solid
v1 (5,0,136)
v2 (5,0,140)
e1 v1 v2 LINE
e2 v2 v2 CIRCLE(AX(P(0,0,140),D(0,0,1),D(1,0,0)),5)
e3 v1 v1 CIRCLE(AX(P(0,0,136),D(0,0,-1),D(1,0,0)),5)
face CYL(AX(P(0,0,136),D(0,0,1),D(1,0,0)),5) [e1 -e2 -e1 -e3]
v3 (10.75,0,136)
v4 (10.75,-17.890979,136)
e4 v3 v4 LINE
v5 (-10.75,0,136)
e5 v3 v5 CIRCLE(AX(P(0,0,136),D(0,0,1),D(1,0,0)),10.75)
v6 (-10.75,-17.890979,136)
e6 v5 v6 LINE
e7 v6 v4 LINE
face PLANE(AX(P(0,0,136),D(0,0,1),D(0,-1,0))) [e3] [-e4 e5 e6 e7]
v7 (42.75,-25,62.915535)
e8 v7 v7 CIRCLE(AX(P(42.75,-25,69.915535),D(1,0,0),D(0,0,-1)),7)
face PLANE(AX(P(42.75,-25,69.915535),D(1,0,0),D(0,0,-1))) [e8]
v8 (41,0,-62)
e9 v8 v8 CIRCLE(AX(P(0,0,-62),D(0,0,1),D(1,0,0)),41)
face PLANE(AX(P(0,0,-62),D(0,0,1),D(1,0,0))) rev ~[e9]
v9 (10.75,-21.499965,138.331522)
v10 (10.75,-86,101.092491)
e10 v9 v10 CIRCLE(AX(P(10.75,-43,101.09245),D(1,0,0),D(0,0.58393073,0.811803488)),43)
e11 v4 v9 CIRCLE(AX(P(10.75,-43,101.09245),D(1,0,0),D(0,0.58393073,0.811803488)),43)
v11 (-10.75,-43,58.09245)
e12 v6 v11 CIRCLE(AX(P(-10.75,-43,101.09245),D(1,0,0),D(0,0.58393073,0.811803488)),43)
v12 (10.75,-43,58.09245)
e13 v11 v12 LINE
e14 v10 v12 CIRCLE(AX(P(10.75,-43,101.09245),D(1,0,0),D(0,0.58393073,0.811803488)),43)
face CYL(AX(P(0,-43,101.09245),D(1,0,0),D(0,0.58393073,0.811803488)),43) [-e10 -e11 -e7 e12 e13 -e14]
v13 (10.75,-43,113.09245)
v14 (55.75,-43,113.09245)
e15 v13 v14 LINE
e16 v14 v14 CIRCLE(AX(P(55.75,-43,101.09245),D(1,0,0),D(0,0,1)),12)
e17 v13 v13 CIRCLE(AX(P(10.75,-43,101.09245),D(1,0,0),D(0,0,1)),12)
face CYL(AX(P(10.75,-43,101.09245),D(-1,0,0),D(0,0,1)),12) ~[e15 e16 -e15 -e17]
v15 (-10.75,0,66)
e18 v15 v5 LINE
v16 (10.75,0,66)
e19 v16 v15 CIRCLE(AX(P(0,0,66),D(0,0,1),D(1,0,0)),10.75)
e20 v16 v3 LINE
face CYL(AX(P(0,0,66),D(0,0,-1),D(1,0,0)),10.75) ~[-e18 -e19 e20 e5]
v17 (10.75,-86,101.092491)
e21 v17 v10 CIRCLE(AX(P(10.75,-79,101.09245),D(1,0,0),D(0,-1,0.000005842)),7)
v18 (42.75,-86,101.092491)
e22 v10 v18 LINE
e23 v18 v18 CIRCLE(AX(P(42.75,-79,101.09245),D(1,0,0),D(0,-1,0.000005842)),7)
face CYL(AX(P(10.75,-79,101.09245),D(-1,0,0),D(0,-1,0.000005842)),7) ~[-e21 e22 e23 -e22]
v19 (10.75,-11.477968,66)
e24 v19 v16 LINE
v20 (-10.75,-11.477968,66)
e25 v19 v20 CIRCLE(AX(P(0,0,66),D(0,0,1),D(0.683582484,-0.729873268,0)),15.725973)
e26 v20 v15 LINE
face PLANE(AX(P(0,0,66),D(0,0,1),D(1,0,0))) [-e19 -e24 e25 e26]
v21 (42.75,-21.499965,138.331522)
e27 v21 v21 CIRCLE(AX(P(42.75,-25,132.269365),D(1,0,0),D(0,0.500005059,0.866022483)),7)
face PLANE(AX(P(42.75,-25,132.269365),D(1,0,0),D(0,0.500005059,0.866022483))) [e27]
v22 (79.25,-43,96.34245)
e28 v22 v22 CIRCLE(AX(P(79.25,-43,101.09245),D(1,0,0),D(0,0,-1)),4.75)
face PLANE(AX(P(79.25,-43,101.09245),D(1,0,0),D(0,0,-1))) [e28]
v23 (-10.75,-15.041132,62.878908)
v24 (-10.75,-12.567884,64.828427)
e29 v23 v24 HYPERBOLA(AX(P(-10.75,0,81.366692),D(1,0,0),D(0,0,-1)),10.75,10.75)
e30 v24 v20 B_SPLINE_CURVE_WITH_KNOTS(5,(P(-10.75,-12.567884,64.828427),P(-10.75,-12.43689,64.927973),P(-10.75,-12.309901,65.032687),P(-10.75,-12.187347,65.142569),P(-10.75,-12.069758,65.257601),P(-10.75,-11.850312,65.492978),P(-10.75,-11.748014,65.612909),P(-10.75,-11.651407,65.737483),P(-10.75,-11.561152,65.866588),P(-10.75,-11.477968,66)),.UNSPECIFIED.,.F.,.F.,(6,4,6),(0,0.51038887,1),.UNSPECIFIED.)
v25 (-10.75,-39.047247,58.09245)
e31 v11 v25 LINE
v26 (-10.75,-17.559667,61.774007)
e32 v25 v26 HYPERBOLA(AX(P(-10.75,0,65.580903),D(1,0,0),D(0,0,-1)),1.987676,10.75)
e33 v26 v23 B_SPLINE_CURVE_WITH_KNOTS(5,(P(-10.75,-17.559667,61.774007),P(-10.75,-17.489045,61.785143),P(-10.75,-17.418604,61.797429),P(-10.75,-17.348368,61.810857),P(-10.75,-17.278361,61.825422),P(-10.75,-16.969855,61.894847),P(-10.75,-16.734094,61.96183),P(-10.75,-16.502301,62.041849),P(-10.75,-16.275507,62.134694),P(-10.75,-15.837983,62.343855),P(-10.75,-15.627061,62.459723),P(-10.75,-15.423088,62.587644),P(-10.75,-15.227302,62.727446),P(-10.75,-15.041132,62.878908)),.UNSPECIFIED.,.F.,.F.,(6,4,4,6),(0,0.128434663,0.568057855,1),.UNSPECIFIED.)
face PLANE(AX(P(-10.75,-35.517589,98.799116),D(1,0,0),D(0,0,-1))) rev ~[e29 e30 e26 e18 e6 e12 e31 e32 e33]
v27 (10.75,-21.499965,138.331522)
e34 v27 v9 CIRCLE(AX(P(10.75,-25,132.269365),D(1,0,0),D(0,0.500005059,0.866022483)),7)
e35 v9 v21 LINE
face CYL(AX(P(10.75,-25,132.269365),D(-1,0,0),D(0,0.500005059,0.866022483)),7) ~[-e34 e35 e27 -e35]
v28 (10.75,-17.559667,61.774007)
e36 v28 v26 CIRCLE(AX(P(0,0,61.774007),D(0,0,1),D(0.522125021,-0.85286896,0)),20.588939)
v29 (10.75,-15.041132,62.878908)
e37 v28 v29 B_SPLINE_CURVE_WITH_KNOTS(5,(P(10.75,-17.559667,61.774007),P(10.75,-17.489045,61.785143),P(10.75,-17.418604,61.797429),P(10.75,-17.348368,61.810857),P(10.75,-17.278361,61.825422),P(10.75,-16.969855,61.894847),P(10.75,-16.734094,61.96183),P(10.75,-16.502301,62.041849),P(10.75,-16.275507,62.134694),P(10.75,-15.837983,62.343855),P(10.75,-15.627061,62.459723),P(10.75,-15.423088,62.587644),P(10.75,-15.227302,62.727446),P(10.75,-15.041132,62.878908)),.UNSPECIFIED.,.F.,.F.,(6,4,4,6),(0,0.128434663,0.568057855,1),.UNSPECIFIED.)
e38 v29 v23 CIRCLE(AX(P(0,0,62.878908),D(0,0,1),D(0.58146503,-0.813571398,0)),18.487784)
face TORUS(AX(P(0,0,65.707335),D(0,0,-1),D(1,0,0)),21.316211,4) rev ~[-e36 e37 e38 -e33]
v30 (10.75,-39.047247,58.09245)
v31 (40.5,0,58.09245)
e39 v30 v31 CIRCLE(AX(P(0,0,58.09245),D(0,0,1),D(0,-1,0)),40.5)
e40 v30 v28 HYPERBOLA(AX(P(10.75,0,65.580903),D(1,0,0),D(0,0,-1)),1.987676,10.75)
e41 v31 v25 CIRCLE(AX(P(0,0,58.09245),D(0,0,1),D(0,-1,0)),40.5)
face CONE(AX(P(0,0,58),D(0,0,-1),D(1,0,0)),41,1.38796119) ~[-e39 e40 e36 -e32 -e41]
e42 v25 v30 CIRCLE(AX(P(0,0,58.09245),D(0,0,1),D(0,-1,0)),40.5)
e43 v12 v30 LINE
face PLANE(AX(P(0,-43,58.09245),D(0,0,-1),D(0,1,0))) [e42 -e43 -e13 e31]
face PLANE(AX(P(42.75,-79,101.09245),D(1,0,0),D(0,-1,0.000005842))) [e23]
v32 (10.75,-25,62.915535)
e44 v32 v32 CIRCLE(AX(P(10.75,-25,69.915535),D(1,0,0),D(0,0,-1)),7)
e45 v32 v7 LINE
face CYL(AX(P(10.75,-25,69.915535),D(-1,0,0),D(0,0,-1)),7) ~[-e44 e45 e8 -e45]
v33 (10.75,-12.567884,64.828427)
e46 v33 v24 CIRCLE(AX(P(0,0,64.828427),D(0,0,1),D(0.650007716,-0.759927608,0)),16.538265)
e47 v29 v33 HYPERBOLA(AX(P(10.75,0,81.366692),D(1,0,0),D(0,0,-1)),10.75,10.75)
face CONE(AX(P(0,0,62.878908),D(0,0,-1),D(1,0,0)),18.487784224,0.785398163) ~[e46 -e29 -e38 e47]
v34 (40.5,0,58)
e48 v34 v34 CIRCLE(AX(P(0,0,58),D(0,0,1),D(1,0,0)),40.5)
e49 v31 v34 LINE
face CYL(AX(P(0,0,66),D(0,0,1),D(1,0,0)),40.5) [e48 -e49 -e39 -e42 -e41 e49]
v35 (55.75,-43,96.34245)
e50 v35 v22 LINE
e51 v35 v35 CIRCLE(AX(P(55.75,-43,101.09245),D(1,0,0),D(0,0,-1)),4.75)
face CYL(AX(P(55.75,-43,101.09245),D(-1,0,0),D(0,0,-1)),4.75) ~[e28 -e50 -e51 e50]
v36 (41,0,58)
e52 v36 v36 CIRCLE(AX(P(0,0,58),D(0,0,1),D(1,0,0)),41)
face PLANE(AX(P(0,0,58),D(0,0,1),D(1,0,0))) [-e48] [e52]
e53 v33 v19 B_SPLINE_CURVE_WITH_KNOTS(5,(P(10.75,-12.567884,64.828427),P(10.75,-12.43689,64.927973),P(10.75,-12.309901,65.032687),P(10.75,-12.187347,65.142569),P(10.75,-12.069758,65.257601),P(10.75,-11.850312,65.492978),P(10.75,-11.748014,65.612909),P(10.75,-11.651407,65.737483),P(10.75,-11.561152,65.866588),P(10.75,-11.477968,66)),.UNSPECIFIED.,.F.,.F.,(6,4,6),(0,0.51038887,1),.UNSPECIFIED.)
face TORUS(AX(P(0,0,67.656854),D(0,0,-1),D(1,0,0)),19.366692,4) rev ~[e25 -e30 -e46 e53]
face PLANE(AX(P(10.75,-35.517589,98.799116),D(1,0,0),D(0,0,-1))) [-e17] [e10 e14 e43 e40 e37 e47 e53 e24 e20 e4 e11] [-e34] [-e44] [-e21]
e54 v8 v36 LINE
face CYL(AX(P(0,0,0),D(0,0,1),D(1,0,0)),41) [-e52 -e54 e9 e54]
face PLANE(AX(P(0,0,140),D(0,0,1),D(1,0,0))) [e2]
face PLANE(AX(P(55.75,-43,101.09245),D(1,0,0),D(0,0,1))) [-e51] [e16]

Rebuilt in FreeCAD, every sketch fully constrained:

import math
import FreeCAD as App
import Part
import Sketcher

doc = App.newDocument("Part")
params = doc.addObject("Spreadsheet::Sheet", "Params")
for row, (alias, value) in enumerate([
    ("sketch1_diameter", "82 mm"),
    ("pad1_length", "124 mm"),
    ("sketch2_diameter", "82 mm"),
    ("pad2_length", "8 mm"),
    ("sketch3_diameter", "82 mm"),
    ("sketch3_diameter2", "81 mm"),
    ("pocket1_length", "8 mm"),
    ("sketch4_radius", "4 mm"),
    ("sketch4_radius2", "4 mm"),
    ("sketch4_width", "3 mm"),
    ("sketch4_height", "10 mm"),
    ("groove_angle", "360 deg"),
    ("sketch5_diameter", "21.5 mm"),
    ("pad3_length", "70 mm"),
    ("sketch6_diameter", "10 mm"),
    ("pad4_length", "8 mm"),
    ("sketch7_radius", "43 mm"),
    ("sketch7_width", "43 mm"),
    ("pad5_length", "21.5 mm"),
    ("sketch8_diameter", "14 mm"),
    ("pad6_length", "32 mm"),
    ("sketch9_diameter", "24 mm"),
    ("pad7_length", "45 mm"),
    ("sketch10_diameter", "9.5 mm"),
    ("pad8_length", "23.5 mm"),
], start=1):
    params.set(f"A{row}", alias)
    params.set(f"B{row}", "=" + value)
    params.setAlias(f"B{row}", alias)

body = doc.addObject("PartDesign::Body", "Body")

sketch1 = body.newObject("Sketcher::SketchObject", "Sketch")
sketch1.AttachmentSupport = (doc.getObject("XY_Plane"), [""])
sketch1.MapMode = "FlatFace"
sketch1.addGeometry(Part.Circle(App.Vector(0, 0, 0), App.Vector(0, 0, 1), 41), False)
sketch1.addConstraint([
    Sketcher.Constraint("Coincident", 0, 3, -1, 1),
    Sketcher.Constraint("Diameter", 0, 82.0),
])
sketch1.setExpression("Constraints[1]", "Params.sketch1_diameter")
pad1 = body.newObject("PartDesign::Pad", "Pad")
pad1.Profile = sketch1
pad1.setExpression("Length", "Params.pad1_length")
pad1.Midplane = True

sketch2 = body.newObject("Sketcher::SketchObject", "Sketch001")
sketch2.AttachmentSupport = (doc.getObject("XY_Plane"), [""])
sketch2.MapMode = "FlatFace"
sketch2.AttachmentOffset = App.Placement(App.Vector(0, 0, 62), App.Rotation())
sketch2.addGeometry(Part.Circle(App.Vector(0, 0, 0), App.Vector(0, 0, 1), 41), False)
sketch2.addConstraint([
    Sketcher.Constraint("Coincident", 0, 3, -1, 1),
    Sketcher.Constraint("Diameter", 0, 82.0),
])
sketch2.setExpression("Constraints[1]", "Params.sketch2_diameter")
pad2 = body.newObject("PartDesign::Pad", "Pad001")
pad2.Profile = sketch2
pad2.setExpression("Length", "Params.pad2_length")
pad2.Midplane = True

sketch3 = body.newObject("Sketcher::SketchObject", "Sketch002")
sketch3.AttachmentSupport = (doc.getObject("XY_Plane"), [""])
sketch3.MapMode = "FlatFace"
sketch3.AttachmentOffset = App.Placement(App.Vector(0, 0, 66), App.Rotation())
sketch3.addGeometry([
    Part.Circle(App.Vector(0, 0, 0), App.Vector(0, 0, 1), 41),
    Part.Circle(App.Vector(0, 0, 0), App.Vector(0, 0, 1), 40),
], False)
sketch3.addConstraint([
    Sketcher.Constraint("Coincident", 0, 3, -1, 1),
    Sketcher.Constraint("Coincident", 1, 3, -1, 1),
    Sketcher.Constraint("Diameter", 0, 82.0),
    Sketcher.Constraint("Diameter", 1, 81.0),
])
sketch3.setExpression("Constraints[2]", "Params.sketch3_diameter")
sketch3.setExpression("Constraints[3]", "Params.sketch3_diameter2")
pocket1 = body.newObject("PartDesign::Pocket", "Pocket")
pocket1.Profile = sketch3
pocket1.setExpression("Length", "Params.pocket1_length")

sketch4 = body.newObject("Sketcher::SketchObject", "Sketch003")
sketch4.AttachmentSupport = (doc.getObject("YZ_Plane"), [""])
sketch4.MapMode = "FlatFace"
sketch4.addGeometry([
    Part.LineSegment(App.Vector(20.588939, 61.774007, 0), App.Vector(41, 58, 0)),
    Part.LineSegment(App.Vector(41, 58, 0), App.Vector(44, 58, 0)),
    Part.LineSegment(App.Vector(44, 58, 0), App.Vector(44, 68, 0)),
    Part.LineSegment(App.Vector(44, 68, 0), App.Vector(15.366692, 68, 0)),
    Part.LineSegment(App.Vector(15.366692, 68, 0), App.Vector(15.366692, 67.656854, 0)),
    Part.ArcOfCircle(Part.Circle(App.Vector(19.366692, 67.656854, 0), App.Vector(0, 0, 1), 4), math.radians(-180), math.radians(-135)),
    Part.LineSegment(App.Vector(16.538265, 64.828427, 0), App.Vector(18.487784, 62.878908, 0)),
    Part.ArcOfCircle(Part.Circle(App.Vector(21.316211, 65.707335, 0), App.Vector(0, 0, 1), 4), math.radians(-135), math.radians(-100.475682)),
], False)
sketch4.addConstraint([
    Sketcher.Constraint("Coincident", 0, 2, 1, 1),
    Sketcher.Constraint("Coincident", 1, 2, 2, 1),
    Sketcher.Constraint("Coincident", 2, 2, 3, 1),
    Sketcher.Constraint("Coincident", 3, 2, 4, 1),
    Sketcher.Constraint("Coincident", 4, 2, 5, 1),
    Sketcher.Constraint("Coincident", 5, 2, 6, 1),
    Sketcher.Constraint("Coincident", 6, 2, 7, 1),
    Sketcher.Constraint("Coincident", 7, 2, 0, 1),
    Sketcher.Constraint("Horizontal", 1),
    Sketcher.Constraint("Vertical", 2),
    Sketcher.Constraint("Horizontal", 3),
    Sketcher.Constraint("Vertical", 4),
    Sketcher.Constraint("Radius", 5, 4.0),
    Sketcher.Constraint("Radius", 7, 4.0),
    Sketcher.Constraint("DistanceX", 1, 1, 1, 2, 3.0),
    Sketcher.Constraint("DistanceY", 2, 1, 2, 2, 10.0),
    Sketcher.Constraint("DistanceX", -1, 1, 0, 2, 41.0),
    Sketcher.Constraint("DistanceY", -1, 1, 0, 2, 58.0),
    Sketcher.Constraint("DistanceY", 7, 2, 6, 2, 1.104902),
    Sketcher.Constraint("DistanceX", 3, 2, 3, 1, 28.633308),
    Sketcher.Constraint("DistanceY", 4, 2, 4, 1, 0.343146),
    Sketcher.Constraint("DistanceX", -1, 1, 7, 3, 21.316211),
    Sketcher.Constraint("DistanceY", -1, 1, 6, 2, 62.878908),
    Sketcher.Constraint("DistanceX", -1, 1, 7, 2, 20.588939),
    Sketcher.Constraint("DistanceY", 7, 3, 5, 3, 1.949519),
    Sketcher.Constraint("DistanceY", 5, 2, 7, 3, 0.878908),
])
sketch4.setExpression("Constraints[12]", "Params.sketch4_radius")
sketch4.setExpression("Constraints[13]", "Params.sketch4_radius2")
sketch4.setExpression("Constraints[14]", "Params.sketch4_width")
sketch4.setExpression("Constraints[15]", "Params.sketch4_height")
groove = body.newObject("PartDesign::Groove", "Groove")
groove.Profile = sketch4
groove.ReferenceAxis = (sketch4, ["V_Axis"])
groove.setExpression("Angle", "Params.groove_angle")

sketch5 = body.newObject("Sketcher::SketchObject", "Sketch004")
sketch5.AttachmentSupport = (doc.getObject("XY_Plane"), [""])
sketch5.MapMode = "FlatFace"
sketch5.AttachmentOffset = App.Placement(App.Vector(0, 0, 66), App.Rotation())
sketch5.addGeometry(Part.Circle(App.Vector(0, 0, 0), App.Vector(0, 0, 1), 11), False)
sketch5.addConstraint([
    Sketcher.Constraint("Coincident", 0, 3, -1, 1),
    Sketcher.Constraint("Diameter", 0, 21.5),
])
sketch5.setExpression("Constraints[1]", "Params.sketch5_diameter")
pad3 = body.newObject("PartDesign::Pad", "Pad002")
pad3.Profile = sketch5
pad3.setExpression("Length", "Params.pad3_length")

sketch6 = body.newObject("Sketcher::SketchObject", "Sketch005")
sketch6.AttachmentSupport = (doc.getObject("XY_Plane"), [""])
sketch6.MapMode = "FlatFace"
sketch6.AttachmentOffset = App.Placement(App.Vector(0, 0, 136), App.Rotation())
sketch6.addGeometry(Part.Circle(App.Vector(0, 0, 0), App.Vector(0, 0, 1), 5), False)
sketch6.addConstraint([
    Sketcher.Constraint("Coincident", 0, 3, -1, 1),
    Sketcher.Constraint("Diameter", 0, 10.0),
])
sketch6.setExpression("Constraints[1]", "Params.sketch6_diameter")
pad4 = body.newObject("PartDesign::Pad", "Pad003")
pad4.Profile = sketch6
pad4.setExpression("Length", "Params.pad4_length")
pad4.Midplane = True

sketch7 = body.newObject("Sketcher::SketchObject", "Sketch006")
sketch7.AttachmentSupport = (doc.getObject("YZ_Plane"), [""])
sketch7.MapMode = "FlatFace"
sketch7.addGeometry([
    Part.LineSegment(App.Vector(0, 136, 0), App.Vector(-18, 136, 0)),
    Part.ArcOfCircle(Part.Circle(App.Vector(-43, 101, 0), App.Vector(0, 0, 1), 43), math.radians(54), math.radians(270)),
    Part.LineSegment(App.Vector(-43, 58, 0), App.Vector(0, 58, 0)),
    Part.LineSegment(App.Vector(0, 58, 0), App.Vector(0, 136, 0)),
], False)
sketch7.addConstraint([
    Sketcher.Constraint("Coincident", 0, 2, 1, 1),
    Sketcher.Constraint("Tangent", 1, 2, 2, 1),
    Sketcher.Constraint("Coincident", 2, 2, 3, 1),
    Sketcher.Constraint("Coincident", 3, 2, 0, 1),
    Sketcher.Constraint("Horizontal", 0),
    Sketcher.Constraint("Horizontal", 2),
    Sketcher.Constraint("Vertical", 3),
    Sketcher.Constraint("PointOnObject", 2, 2, -2),
    Sketcher.Constraint("Radius", 1, 43.0),
    Sketcher.Constraint("DistanceX", 2, 1, 2, 2, 43.0),
    Sketcher.Constraint("DistanceY", -1, 1, 0, 2, 136.0),
    Sketcher.Constraint("DistanceX", 0, 2, 0, 1, 17.890979),
])
sketch7.setExpression("Constraints[8]", "Params.sketch7_radius")
sketch7.setExpression("Constraints[9]", "Params.sketch7_width")
pad5 = body.newObject("PartDesign::Pad", "Pad004")
pad5.Profile = sketch7
pad5.setExpression("Length", "Params.pad5_length")
pad5.Midplane = True

sketch8 = body.newObject("Sketcher::SketchObject", "Sketch007")
sketch8.AttachmentSupport = (doc.getObject("YZ_Plane"), [""])
sketch8.MapMode = "FlatFace"
sketch8.AttachmentOffset = App.Placement(App.Vector(0, 0, 10.75), App.Rotation())
sketch8.addGeometry([
    Part.Circle(App.Vector(-25, 70, 0), App.Vector(0, 0, 1), 7),
    Part.Circle(App.Vector(-79, 101, 0), App.Vector(0, 0, 1), 7),
    Part.Circle(App.Vector(-25, 132, 0), App.Vector(0, 0, 1), 7),
], False)
sketch8.addConstraint([
    Sketcher.Constraint("Equal", 0, 1),
    Sketcher.Constraint("Equal", 1, 2),
    Sketcher.Constraint("Vertical", 0, 3, 2, 3),
    Sketcher.Constraint("Diameter", 0, 14.0),
    Sketcher.Constraint("DistanceX", 0, 3, -1, 1, 25.0),
    Sketcher.Constraint("DistanceX", 1, 3, -1, 1, 79.0),
    Sketcher.Constraint("DistanceY", -1, 1, 1, 3, 101.09245),
    Sketcher.Constraint("DistanceY", 0, 3, 2, 3, 62.353829),
    Sketcher.Constraint("DistanceY", -1, 1, 0, 3, 69.915535),
])
sketch8.setExpression("Constraints[3]", "Params.sketch8_diameter")
pad6 = body.newObject("PartDesign::Pad", "Pad005")
pad6.Profile = sketch8
pad6.setExpression("Length", "Params.pad6_length")

sketch9 = body.newObject("Sketcher::SketchObject", "Sketch008")
sketch9.AttachmentSupport = (doc.getObject("YZ_Plane"), [""])
sketch9.MapMode = "FlatFace"
sketch9.AttachmentOffset = App.Placement(App.Vector(0, 0, 10.75), App.Rotation())
sketch9.addGeometry(Part.Circle(App.Vector(-43, 101, 0), App.Vector(0, 0, 1), 12), False)
sketch9.addConstraint([
    Sketcher.Constraint("Diameter", 0, 24.0),
    Sketcher.Constraint("DistanceX", 0, 3, -1, 1, 43.0),
    Sketcher.Constraint("DistanceY", -1, 1, 0, 3, 101.09245),
])
sketch9.setExpression("Constraints[0]", "Params.sketch9_diameter")
pad7 = body.newObject("PartDesign::Pad", "Pad006")
pad7.Profile = sketch9
pad7.setExpression("Length", "Params.pad7_length")

sketch10 = body.newObject("Sketcher::SketchObject", "Sketch009")
sketch10.AttachmentSupport = (doc.getObject("YZ_Plane"), [""])
sketch10.MapMode = "FlatFace"
sketch10.AttachmentOffset = App.Placement(App.Vector(0, 0, 55.75), App.Rotation())
sketch10.addGeometry(Part.Circle(App.Vector(-43, 101.1, 0), App.Vector(0, 0, 1), 4.8), False)
sketch10.addConstraint([
    Sketcher.Constraint("Diameter", 0, 9.5),
    Sketcher.Constraint("DistanceX", 0, 3, -1, 1, 43.0),
    Sketcher.Constraint("DistanceY", -1, 1, 0, 3, 101.09245),
])
sketch10.setExpression("Constraints[0]", "Params.sketch10_diameter")
pad8 = body.newObject("PartDesign::Pad", "Pad007")
pad8.Profile = sketch10
pad8.setExpression("Length", "Params.pad8_length")

doc.recompute()
